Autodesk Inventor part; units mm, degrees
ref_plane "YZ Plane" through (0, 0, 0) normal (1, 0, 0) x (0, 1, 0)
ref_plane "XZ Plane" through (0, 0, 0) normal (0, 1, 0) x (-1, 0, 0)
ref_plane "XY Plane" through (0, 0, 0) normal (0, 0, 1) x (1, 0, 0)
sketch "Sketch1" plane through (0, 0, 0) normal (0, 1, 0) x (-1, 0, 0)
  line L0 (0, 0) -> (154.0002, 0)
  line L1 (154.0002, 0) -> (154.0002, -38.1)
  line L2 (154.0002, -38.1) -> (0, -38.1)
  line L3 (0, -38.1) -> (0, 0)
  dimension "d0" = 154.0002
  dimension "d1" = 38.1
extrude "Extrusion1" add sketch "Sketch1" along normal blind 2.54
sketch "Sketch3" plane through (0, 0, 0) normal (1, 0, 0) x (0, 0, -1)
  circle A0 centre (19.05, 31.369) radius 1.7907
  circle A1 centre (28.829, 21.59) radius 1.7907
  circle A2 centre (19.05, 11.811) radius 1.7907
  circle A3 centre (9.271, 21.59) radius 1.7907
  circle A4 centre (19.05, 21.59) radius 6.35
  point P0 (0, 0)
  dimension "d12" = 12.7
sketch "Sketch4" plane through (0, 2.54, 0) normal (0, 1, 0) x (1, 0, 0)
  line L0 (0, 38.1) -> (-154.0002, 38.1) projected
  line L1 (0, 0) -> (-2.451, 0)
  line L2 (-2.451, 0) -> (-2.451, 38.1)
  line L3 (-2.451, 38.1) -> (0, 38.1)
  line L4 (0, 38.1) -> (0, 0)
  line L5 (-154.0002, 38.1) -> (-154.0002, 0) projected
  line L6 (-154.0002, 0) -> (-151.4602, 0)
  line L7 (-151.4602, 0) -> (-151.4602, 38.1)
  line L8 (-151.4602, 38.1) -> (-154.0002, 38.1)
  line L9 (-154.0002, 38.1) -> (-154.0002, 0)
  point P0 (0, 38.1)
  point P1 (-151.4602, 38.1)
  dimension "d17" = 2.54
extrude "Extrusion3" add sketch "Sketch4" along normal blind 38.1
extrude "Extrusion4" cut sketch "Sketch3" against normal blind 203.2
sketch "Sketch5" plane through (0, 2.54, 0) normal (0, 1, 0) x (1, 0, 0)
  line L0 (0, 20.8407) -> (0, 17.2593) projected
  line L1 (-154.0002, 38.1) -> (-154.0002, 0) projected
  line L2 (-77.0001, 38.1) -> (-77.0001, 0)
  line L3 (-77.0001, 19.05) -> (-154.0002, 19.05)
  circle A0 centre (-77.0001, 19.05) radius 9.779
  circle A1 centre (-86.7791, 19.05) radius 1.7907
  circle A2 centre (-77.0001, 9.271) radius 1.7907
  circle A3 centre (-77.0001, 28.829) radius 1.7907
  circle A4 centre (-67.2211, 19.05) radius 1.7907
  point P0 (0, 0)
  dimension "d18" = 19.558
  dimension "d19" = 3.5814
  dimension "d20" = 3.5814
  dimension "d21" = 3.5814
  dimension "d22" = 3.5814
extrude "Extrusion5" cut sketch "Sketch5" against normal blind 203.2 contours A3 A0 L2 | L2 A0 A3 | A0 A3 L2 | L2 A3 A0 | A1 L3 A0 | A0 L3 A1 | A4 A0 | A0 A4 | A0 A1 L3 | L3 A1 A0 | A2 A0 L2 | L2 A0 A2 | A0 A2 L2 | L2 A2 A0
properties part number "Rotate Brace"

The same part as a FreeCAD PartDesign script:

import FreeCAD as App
import Part
import Sketcher
Q = App.Units.Quantity


def add_polygon(sketch, points):
    """Adds a closed chain of lines whose ends are joined by coincident constraints."""
    first, n = sketch.GeometryCount, len(points)
    for a, b in zip(points, points[1:] + points[:1]):
        sketch.addGeometry(Part.LineSegment(App.Vector(*a, 0), App.Vector(*b, 0)), False)
    for i in range(n):
        sketch.addConstraint(Sketcher.Constraint("Coincident", first + i, 2, first + (i + 1) % n, 1))

doc = App.newDocument("Part")
body = doc.addObject("PartDesign::Body", "Body")

# Sketch on XZ plane
sketch1 = doc.addObject("Sketcher::SketchObject", "Sketch")
body.addObject(sketch1)
sketch1.AttachmentSupport = (doc.XZ_Plane, [""])
sketch1.MapMode = "FlatFace"
add_polygon(sketch1, [(-154, 0), (0, 0), (0, -38), (-154, -38)])  # lines 0-3
sketch1.addConstraint([
    Sketcher.Constraint("Horizontal", 0),
    Sketcher.Constraint("Vertical", 1),
    Sketcher.Constraint("Horizontal", 2),
    Sketcher.Constraint("Vertical", 3),
    Sketcher.Constraint("Coincident", 0, 2, -1, 1),
    Sketcher.Constraint("DistanceY", 1, 2, 1, 1, Q("1.5 in")),
    Sketcher.Constraint("DistanceX", 0, 1, 0, 2, Q("6.063 in")),
])
pad1 = doc.addObject("PartDesign::Pad", "Pad")
body.addObject(pad1)
pad1.Profile = sketch1
pad1.Length = Q("0.1 in")
pad1.Reversed = True

# Sketch on XZ plane
sketch2 = doc.addObject("Sketcher::SketchObject", "Sketch001")
body.addObject(sketch2)
sketch2.AttachmentSupport = (doc.XZ_Plane, [""])
sketch2.MapMode = "FlatFace"
sketch2.AttachmentOffset = App.Placement(App.Vector(0, 0, -0.1 * 25.4), App.Rotation())
add_polygon(sketch2, [(0, 0), (0, -38.1), (-2.5, -38.1), (-2.5, 0)])  # lines 0-3
add_polygon(sketch2, [(-151.5, 0), (-151.5, -38.1), (-154, -38.1), (-154, 0)])  # lines 4-7
sketch2.addConstraint([
    Sketcher.Constraint("Vertical", 0),
    Sketcher.Constraint("Horizontal", 1),
    Sketcher.Constraint("Vertical", 2),
    Sketcher.Constraint("Horizontal", 3),
    Sketcher.Constraint("Vertical", 4),
    Sketcher.Constraint("Horizontal", 5),
    Sketcher.Constraint("Vertical", 6),
    Sketcher.Constraint("Horizontal", 7),
    Sketcher.Constraint("Coincident", 3, 2, -1, 1),
    Sketcher.Constraint("PointOnObject", 6, 2, -1),
    Sketcher.Constraint("Horizontal", 1, 2, 4, 2),
    Sketcher.Constraint("DistanceX", 5, 2, 5, 1, Q("0.1 in")),
    Sketcher.Constraint("DistanceY", 0, 2, 0, 1, Q("1.5 in")),
    Sketcher.Constraint("DistanceX", 1, 2, 1, 1, Q("0.0965 in")),
    Sketcher.Constraint("DistanceX", 4, 2, -1, 1, Q("5.963 in")),
])
pad2 = doc.addObject("PartDesign::Pad", "Pad001")
body.addObject(pad2)
pad2.Profile = sketch2
pad2.Length = Q("1.5 in")
pad2.Reversed = True

# Sketch on YZ plane
sketch3 = doc.addObject("Sketcher::SketchObject", "Sketch002")
body.addObject(sketch3)
sketch3.AttachmentSupport = (doc.YZ_Plane, [""])
sketch3.MapMode = "FlatFace"
sketch3.addGeometry([
    Part.Circle(App.Vector(31.4, -19.1, 0), App.Vector(0, 0, 1), 1.8),  # 0
    Part.Circle(App.Vector(21.6, -28.8, 0), App.Vector(0, 0, 1), 1.8),  # 1
    Part.Circle(App.Vector(11.8, -19.1, 0), App.Vector(0, 0, 1), 1.8),  # 2
    Part.Circle(App.Vector(21.6, -9.3, 0), App.Vector(0, 0, 1), 1.8),  # 3
    Part.Circle(App.Vector(21.6, -19.1, 0), App.Vector(0, 0, 1), 6.3),  # 4
], False)
sketch3.addConstraint([
    Sketcher.Constraint("Equal", 0, 1),
    Sketcher.Constraint("Equal", 1, 2),
    Sketcher.Constraint("Equal", 2, 3),
    Sketcher.Constraint("Horizontal", 0, 3, 2, 3),
    Sketcher.Constraint("Horizontal", 2, 3, 4, 3),
    Sketcher.Constraint("Vertical", 1, 3, 3, 3),
    Sketcher.Constraint("Vertical", 3, 3, 4, 3),
    Sketcher.Constraint("Diameter", 4, Q("0.5 in")),
    Sketcher.Constraint("Diameter", 0, Q("0.141 in")),
    Sketcher.Constraint("DistanceY", 0, 3, -1, 1, Q("0.75 in")),
    Sketcher.Constraint("DistanceX", -1, 1, 1, 3, Q("0.85 in")),
    Sketcher.Constraint("DistanceX", 2, 3, 0, 3, Q("0.77 in")),
    Sketcher.Constraint("DistanceY", 1, 3, 3, 3, Q("0.77 in")),
    Sketcher.Constraint("DistanceX", -1, 1, 0, 3, Q("1.235 in")),
    Sketcher.Constraint("DistanceY", 1, 3, -1, 1, Q("1.135 in")),
])
pocket1 = doc.addObject("PartDesign::Pocket", "Pocket")
body.addObject(pocket1)
pocket1.Profile = sketch3
pocket1.Length = Q("8 in")

# Sketch on XZ plane
sketch4 = doc.addObject("Sketcher::SketchObject", "Sketch003")
body.addObject(sketch4)
sketch4.AttachmentSupport = (doc.XZ_Plane, [""])
sketch4.MapMode = "FlatFace"
sketch4.AttachmentOffset = App.Placement(App.Vector(0, 0, -0.1 * 25.4), App.Rotation())
sketch4.addGeometry([
    Part.Circle(App.Vector(-77, -28.8, 0), App.Vector(0, 0, 1), 1.8),
    Part.Circle(App.Vector(-86.8, -19.1, 0), App.Vector(0, 0, 1), 1.8),
    Part.Circle(App.Vector(-67.2, -19.1, 0), App.Vector(0, 0, 1), 1.8),
    Part.Circle(App.Vector(-77, -9.3, 0), App.Vector(0, 0, 1), 1.8),
], False)
sketch4.addConstraint([
    Sketcher.Constraint("Equal", 0, 1),
    Sketcher.Constraint("Equal", 1, 2),
    Sketcher.Constraint("Equal", 2, 3),
    Sketcher.Constraint("Horizontal", 1, 3, 2, 3),
    Sketcher.Constraint("Vertical", 0, 3, 3, 3),
    Sketcher.Constraint("Diameter", 0, Q("0.141 in")),
    Sketcher.Constraint("DistanceX", 1, 3, 2, 3, Q("0.77 in")),
    Sketcher.Constraint("DistanceY", 0, 3, 3, 3, Q("0.77 in")),
    Sketcher.Constraint("DistanceY", 1, 3, -1, 1, Q("0.75 in")),
    Sketcher.Constraint("DistanceY", 0, 3, -1, 1, Q("1.135 in")),
    Sketcher.Constraint("DistanceX", 1, 3, 0, 3, Q("0.385 in")),
    Sketcher.Constraint("DistanceX", 0, 3, -1, 1, Q("3.0315 in")),
])
pocket2 = doc.addObject("PartDesign::Pocket", "Pocket001")
body.addObject(pocket2)
pocket2.Profile = sketch4
pocket2.Length = Q("8 in")
pocket2.Reversed = True

doc.recompute()
